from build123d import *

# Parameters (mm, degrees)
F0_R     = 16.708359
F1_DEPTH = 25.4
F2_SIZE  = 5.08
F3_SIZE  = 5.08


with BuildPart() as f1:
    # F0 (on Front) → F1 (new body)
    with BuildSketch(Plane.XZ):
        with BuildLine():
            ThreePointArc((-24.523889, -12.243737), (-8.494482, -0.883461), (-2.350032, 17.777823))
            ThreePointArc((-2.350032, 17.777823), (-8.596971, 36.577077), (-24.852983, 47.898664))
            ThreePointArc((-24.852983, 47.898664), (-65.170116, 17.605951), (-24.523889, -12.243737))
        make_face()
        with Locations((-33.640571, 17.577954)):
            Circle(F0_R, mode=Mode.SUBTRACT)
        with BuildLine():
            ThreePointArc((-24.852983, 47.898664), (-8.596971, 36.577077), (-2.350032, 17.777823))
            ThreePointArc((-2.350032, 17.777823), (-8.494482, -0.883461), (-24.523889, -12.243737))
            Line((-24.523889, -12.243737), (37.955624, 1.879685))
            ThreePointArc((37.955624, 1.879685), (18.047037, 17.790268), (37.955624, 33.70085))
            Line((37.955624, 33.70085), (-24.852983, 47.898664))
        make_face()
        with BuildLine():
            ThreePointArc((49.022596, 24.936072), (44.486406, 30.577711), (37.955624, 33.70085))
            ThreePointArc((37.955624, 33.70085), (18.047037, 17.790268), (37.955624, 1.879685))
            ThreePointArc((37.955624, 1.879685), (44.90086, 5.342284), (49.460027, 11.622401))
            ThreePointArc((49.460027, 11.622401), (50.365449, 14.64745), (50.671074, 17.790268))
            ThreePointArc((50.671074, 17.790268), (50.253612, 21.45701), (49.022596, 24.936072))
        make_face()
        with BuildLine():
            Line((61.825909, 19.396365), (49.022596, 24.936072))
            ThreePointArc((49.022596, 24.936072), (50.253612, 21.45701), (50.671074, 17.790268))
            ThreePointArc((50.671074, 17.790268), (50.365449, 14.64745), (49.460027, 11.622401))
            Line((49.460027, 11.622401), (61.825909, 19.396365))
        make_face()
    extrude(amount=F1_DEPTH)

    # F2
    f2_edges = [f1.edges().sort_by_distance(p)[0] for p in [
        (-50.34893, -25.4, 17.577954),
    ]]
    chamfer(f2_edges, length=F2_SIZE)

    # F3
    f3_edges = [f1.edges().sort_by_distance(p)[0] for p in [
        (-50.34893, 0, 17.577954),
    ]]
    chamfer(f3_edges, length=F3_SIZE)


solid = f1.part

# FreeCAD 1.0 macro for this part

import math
import FreeCAD as App
import Part
import Sketcher
from FreeCAD import Vector
Q = App.Units.Quantity


def edges_at(feature, points):
    """Names of the edges that pass closest to the given points."""
    edges = feature.Shape.Edges
    near = lambda p: min(range(len(edges)), key=lambda i: edges[i].distToShape(Part.Vertex(*p))[0])
    return sorted({f"Edge{near(p) + 1}" for p in points})

doc = App.newDocument("Part")
body = doc.addObject("PartDesign::Body", "Body")

sketch1 = doc.addObject("Sketcher::SketchObject", "Sketch")
body.addObject(sketch1)
sketch1.AttachmentSupport = (doc.XZ_Plane, [""])
sketch1.MapMode = "FlatFace"
sketch1.addGeometry([
    Part.ArcOfCircle(Part.Circle(Vector(-33.760309, 17.777823, 0), Vector(0, 0, 1), 31.410277), math.radians(73.526014), math.radians(287.101015)),
    Part.LineSegment(Vector(-24.523889, -12.243737, 0), Vector(37.955624, 1.879685, 0)),
    Part.ArcOfCircle(Part.Circle(Vector(34.359056, 17.790266, 0), Vector(0, 0, 1), 16.312016), math.radians(-77.262432), math.radians(-22.217147)),
    Part.LineSegment(Vector(49.460027, 11.622401, 0), Vector(61.825909, 19.396365, 0)),
    Part.LineSegment(Vector(61.825909, 19.396365, 0), Vector(49.022596, 24.936072, 0)),
    Part.ArcOfCircle(Part.Circle(Vector(34.359055, 17.790267, 0), Vector(0, 0, 1), 16.312019), math.radians(25.9808), math.radians(77.262431)),
    Part.LineSegment(Vector(37.955624, 33.70085, 0), Vector(-24.852983, 47.898664, 0)),
    Part.Circle(Vector(-33.640571, 17.577954, 0), Vector(0, 0, 1), 16.708359),
], False)
sketch1.addConstraint([
    Sketcher.Constraint("Coincident", 0, 2, 1, 1),
    Sketcher.Constraint("Tangent", 1, 2, 2, 1),
    Sketcher.Constraint("Coincident", 2, 2, 3, 1),
    Sketcher.Constraint("Coincident", 3, 2, 4, 1),
    Sketcher.Constraint("Coincident", 4, 2, 5, 1),
    Sketcher.Constraint("Tangent", 5, 2, 6, 1),
    Sketcher.Constraint("Coincident", 6, 2, 0, 1),
    Sketcher.Constraint("Coincident", 5, 3, 2, 3),
    Sketcher.Constraint("Vertical", 1, 2, 5, 2),
    Sketcher.Constraint("Diameter", 7, 33.416718),
    Sketcher.Constraint("Radius", 5, 16.312019),
    Sketcher.Constraint("Radius", 0, 31.410277),
    Sketcher.Constraint("Radius", 2, 16.312016),
    Sketcher.Constraint("DistanceY", -1, 1, 2, 2, 11.622401),
    Sketcher.Constraint("DistanceX", 7, 3, 2, 2, 83.100598),
    Sketcher.Constraint("DistanceY", 2, 3, 3, 2, 1.606099),
    Sketcher.Constraint("DistanceY", 0, 2, 6, 2, 60.142401),
    Sketcher.Constraint("Distance", 3, 14.60649),
    Sketcher.Constraint("DistanceX", 0, 3, -1, 1, 33.760309),
    Sketcher.Constraint("DistanceX", 7, 3, -1, 1, 33.640571),
    Sketcher.Constraint("DistanceX", 0, 2, -1, 1, 24.523889),
    Sketcher.Constraint("DistanceX", -1, 1, 3, 2, 61.825909),
    Sketcher.Constraint("DistanceY", -1, 1, 4, 2, 24.936072),
    Sketcher.Constraint("DistanceY", 7, 3, 0, 3, 0.199869),
])
pad1 = doc.addObject("PartDesign::Pad", "Pad")
body.addObject(pad1)
pad1.Profile = sketch1
pad1.Length = Q("1 in")
doc.recompute()

chamfer = doc.addObject("PartDesign::Chamfer", "Chamfer")
body.addObject(chamfer)
chamfer.Base = (pad1, edges_at(pad1, [(-50.349, -25.4, 17.578)]))
chamfer.Size = Q("0.2 in")
doc.recompute()

chamfer2 = doc.addObject("PartDesign::Chamfer", "Chamfer001")
body.addObject(chamfer2)
chamfer2.Base = (chamfer, edges_at(chamfer, [(-50.349, 0, 17.578)]))
chamfer2.Size = Q("0.2 in")

doc.recompute()
